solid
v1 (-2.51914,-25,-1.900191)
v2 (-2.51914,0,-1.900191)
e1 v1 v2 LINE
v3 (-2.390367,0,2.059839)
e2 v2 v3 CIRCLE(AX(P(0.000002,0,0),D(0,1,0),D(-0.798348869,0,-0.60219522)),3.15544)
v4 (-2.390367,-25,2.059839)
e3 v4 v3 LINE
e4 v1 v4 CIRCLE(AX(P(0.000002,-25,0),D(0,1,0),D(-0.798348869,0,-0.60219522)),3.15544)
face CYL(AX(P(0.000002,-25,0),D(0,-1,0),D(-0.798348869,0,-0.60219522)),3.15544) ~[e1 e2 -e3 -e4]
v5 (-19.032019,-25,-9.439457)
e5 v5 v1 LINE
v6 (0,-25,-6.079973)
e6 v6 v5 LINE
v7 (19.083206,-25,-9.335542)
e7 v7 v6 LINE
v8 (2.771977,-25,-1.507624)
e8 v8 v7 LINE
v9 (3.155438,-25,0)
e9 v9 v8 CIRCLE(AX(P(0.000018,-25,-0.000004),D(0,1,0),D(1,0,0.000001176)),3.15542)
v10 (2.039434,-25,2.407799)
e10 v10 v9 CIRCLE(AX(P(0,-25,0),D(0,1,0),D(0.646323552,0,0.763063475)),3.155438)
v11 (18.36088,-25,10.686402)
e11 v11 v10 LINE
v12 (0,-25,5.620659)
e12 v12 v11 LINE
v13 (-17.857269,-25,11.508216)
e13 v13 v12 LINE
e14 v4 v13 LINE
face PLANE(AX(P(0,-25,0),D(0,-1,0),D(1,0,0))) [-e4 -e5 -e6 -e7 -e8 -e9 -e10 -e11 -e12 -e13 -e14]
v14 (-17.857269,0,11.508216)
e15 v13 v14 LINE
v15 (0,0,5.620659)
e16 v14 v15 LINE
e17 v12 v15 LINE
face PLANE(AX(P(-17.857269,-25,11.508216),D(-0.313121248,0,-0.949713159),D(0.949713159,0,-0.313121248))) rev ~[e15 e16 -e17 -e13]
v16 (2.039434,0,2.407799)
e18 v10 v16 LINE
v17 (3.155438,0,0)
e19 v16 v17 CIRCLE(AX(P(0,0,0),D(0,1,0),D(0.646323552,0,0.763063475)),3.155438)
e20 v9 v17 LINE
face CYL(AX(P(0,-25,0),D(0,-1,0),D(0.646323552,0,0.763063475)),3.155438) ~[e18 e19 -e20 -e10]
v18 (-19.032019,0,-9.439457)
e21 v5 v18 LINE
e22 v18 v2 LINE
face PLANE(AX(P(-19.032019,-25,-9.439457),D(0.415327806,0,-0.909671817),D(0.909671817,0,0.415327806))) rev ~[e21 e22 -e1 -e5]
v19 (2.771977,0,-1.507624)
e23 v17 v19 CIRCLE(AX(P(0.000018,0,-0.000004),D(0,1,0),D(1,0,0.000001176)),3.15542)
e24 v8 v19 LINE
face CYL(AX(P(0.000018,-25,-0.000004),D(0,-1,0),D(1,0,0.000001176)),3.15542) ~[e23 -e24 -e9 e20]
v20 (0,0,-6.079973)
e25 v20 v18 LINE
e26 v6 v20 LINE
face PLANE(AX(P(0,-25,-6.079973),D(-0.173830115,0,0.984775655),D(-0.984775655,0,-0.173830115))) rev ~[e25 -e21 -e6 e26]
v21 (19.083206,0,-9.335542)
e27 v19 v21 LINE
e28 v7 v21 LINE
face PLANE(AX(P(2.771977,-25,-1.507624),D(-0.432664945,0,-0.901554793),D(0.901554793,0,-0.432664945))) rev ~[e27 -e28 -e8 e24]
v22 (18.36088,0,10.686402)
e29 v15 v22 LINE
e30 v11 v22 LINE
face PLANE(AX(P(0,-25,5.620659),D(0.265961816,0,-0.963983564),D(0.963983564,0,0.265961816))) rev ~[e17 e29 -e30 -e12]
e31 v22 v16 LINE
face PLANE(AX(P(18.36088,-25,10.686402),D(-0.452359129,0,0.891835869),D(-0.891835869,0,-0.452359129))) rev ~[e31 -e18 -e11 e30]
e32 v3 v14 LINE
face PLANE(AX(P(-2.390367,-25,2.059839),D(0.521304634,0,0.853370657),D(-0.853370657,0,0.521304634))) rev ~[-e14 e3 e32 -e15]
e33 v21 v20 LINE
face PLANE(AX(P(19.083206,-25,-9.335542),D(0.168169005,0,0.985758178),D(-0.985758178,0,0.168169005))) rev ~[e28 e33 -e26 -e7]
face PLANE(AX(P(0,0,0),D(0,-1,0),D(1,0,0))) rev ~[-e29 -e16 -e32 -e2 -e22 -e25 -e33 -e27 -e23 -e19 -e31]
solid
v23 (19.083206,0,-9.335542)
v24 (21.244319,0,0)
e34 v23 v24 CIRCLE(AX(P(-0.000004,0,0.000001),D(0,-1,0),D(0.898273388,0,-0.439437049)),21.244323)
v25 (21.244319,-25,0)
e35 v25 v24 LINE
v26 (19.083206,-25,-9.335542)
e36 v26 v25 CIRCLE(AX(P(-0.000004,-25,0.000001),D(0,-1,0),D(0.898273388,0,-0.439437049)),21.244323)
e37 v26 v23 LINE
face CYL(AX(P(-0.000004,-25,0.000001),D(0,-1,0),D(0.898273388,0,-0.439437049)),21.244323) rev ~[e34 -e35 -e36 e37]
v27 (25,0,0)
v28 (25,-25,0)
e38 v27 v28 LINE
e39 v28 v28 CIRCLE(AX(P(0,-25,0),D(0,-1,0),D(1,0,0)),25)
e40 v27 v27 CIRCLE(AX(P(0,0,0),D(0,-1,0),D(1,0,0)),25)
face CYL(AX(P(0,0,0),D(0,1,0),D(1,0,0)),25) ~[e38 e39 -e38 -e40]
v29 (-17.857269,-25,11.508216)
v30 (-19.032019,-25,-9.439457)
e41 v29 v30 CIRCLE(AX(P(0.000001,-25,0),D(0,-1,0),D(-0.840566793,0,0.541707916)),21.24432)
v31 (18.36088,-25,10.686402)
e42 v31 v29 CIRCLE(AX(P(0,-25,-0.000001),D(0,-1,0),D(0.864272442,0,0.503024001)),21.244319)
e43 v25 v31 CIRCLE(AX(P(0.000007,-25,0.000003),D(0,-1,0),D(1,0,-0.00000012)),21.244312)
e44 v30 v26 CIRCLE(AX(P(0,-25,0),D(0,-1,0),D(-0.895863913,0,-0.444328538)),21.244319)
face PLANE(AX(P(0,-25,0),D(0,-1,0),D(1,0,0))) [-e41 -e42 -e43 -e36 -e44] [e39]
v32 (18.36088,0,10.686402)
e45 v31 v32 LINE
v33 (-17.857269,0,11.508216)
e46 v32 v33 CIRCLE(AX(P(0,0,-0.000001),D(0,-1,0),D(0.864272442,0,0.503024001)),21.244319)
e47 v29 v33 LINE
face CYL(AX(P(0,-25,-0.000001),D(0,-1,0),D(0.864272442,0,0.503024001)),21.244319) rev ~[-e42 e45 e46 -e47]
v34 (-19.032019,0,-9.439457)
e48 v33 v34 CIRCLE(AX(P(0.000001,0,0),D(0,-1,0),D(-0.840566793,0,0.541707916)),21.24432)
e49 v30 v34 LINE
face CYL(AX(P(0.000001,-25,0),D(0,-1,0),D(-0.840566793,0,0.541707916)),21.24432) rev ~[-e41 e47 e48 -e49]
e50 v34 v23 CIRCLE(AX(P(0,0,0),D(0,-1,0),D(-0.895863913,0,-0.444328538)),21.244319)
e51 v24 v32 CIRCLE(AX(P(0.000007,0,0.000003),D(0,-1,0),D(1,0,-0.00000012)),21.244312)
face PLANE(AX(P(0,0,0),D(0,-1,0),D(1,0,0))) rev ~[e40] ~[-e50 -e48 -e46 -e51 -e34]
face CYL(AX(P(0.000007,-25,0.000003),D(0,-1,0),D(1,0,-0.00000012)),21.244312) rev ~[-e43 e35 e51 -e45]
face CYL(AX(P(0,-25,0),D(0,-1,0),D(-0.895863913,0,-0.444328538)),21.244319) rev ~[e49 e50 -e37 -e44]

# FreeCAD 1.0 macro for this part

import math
import FreeCAD as App
import Part
import Sketcher

V = App.Vector
Q = App.Units.Quantity

doc = App.newDocument("Part")
params = doc.addObject("Spreadsheet::Sheet", "Params")
for row, (alias, value) in enumerate([
    ("sketch1_diameter", "50 mm"),
    ("pad1_length", "25 mm"),
    ("pocket1_length", "30 mm"),
    ("pocket2_length", "25 mm"),
], start=1):
    params.set(f"A{row}", alias)
    params.set(f"B{row}", "=" + value)
    params.setAlias(f"B{row}", alias)

body = doc.addObject("PartDesign::Body", "Body")
body.AllowCompound = True

# Sketch on XZ plane
sketch1 = body.newObject("Sketcher::SketchObject", "Sketch")
sketch1.AttachmentSupport = (doc.getObject("XZ_Plane"), [""])
sketch1.MapMode = "FlatFace"
sketch1.addGeometry(Part.Circle(V(0, 0, 0), V(0, 0, 1), 25), False)
sketch1.addConstraint([
    Sketcher.Constraint("Coincident", 0, 3, -1, 1),
    Sketcher.Constraint("Diameter", 0, Q("50 mm")),
])
sketch1.setExpression("Constraints[1]", "Params.sketch1_diameter")
pad1 = body.newObject("PartDesign::Pad", "Pad")
pad1.Profile = sketch1
pad1.setExpression("Length", "Params.pad1_length")

# Sketch on XZ plane
sketch2 = body.newObject("Sketcher::SketchObject", "Sketch001")
sketch2.AttachmentSupport = (doc.getObject("XZ_Plane"), [""])
sketch2.MapMode = "FlatFace"
sketch2.AttachmentOffset = App.Placement(V(0, 0, 25), App.Rotation())
sketch2.addGeometry([
    Part.LineSegment(V(0, 6, 0), V(18, 11, 0)),  # 0
    Part.ArcOfCircle(Part.Circle(V(0, 0, 0), V(0, 0, 1), 21), math.radians(30), math.radians(147)),  # 1
    Part.LineSegment(V(-18, 12, 0), V(0, 6, 0)),  # 2
    Part.ArcOfCircle(Part.Circle(V(0, 0, 0), V(0, 0, 1), 21), math.radians(-154), math.radians(-26)),  # 3
    Part.LineSegment(V(19, -9, 0), V(0, -6, 0)),  # 4
    Part.LineSegment(V(0, -6, 0), V(-19, -9, 0)),  # 5
], False)
sketch2.addConstraint([
    Sketcher.Constraint("Coincident", 0, 2, 1, 1),
    Sketcher.Constraint("Coincident", 1, 2, 2, 1),
    Sketcher.Constraint("Coincident", 2, 2, 0, 1),
    Sketcher.Constraint("Coincident", 3, 2, 4, 1),
    Sketcher.Constraint("Coincident", 4, 2, 5, 1),
    Sketcher.Constraint("Coincident", 5, 2, 3, 1),
    Sketcher.Constraint("Coincident", 1, 3, -1, 1),
    Sketcher.Constraint("Coincident", 3, 3, -1, 1),
    Sketcher.Constraint("Equal", 1, 3),
    Sketcher.Constraint("PointOnObject", 2, 2, -2),
    Sketcher.Constraint("PointOnObject", 4, 2, -2),
    Sketcher.Constraint("Radius", 1, Q("21.244319 mm")),
    Sketcher.Constraint("DistanceY", -1, 1, 0, 2, Q("10.686402 mm")),
    Sketcher.Constraint("DistanceY", 3, 2, 2, 2, Q("14.956201 mm")),
    Sketcher.Constraint("Distance", 0, Q("19.046881 mm")),
    Sketcher.Constraint("Distance", 5, Q("19.326248 mm")),
    Sketcher.Constraint("DistanceX", 1, 2, -1, 1, Q("17.857269 mm")),
    Sketcher.Constraint("DistanceX", 5, 2, -1, 1, Q("19.032019 mm")),
])
pocket1 = body.newObject("PartDesign::Pocket", "Pocket")
pocket1.Profile = sketch2
pocket1.setExpression("Length", "Params.pocket1_length")

# Sketch on XZ plane
sketch3 = body.newObject("Sketcher::SketchObject", "Sketch002")
sketch3.AttachmentSupport = (doc.getObject("XZ_Plane"), [""])
sketch3.MapMode = "FlatFace"
sketch3.AttachmentOffset = App.Placement(V(0, 0, 25), App.Rotation())
sketch3.addGeometry([
    Part.LineSegment(V(-2.4, 2.1, 0), V(-17.9, 11.5, 0)),  # 0
    Part.ArcOfCircle(Part.Circle(V(0, 0, 0), V(0, 0, 1), 21.2), math.radians(147), math.radians(206)),  # 1
    Part.LineSegment(V(-19, -9.4, 0), V(-2.5, -1.9, 0)),  # 2
    Part.ArcOfCircle(Part.Circle(V(0, 0, 0), V(0, 0, 1), 3.2), math.radians(139), math.radians(217)),  # 3
    Part.ArcOfCircle(Part.Circle(V(0, 0, 0), V(0, 0, 1), 21.2), math.radians(-26), math.radians(0)),  # 4
    Part.ArcOfCircle(Part.Circle(V(0, 0, 0), V(0, 0, 1), 21.2), math.radians(0), math.radians(30)),  # 5
    Part.LineSegment(V(18.4, 10.7, 0), V(2, 2.4, 0)),  # 6
    Part.ArcOfCircle(Part.Circle(V(0, 0, 0), V(0, 0, 1), 3.2), math.radians(0), math.radians(50)),  # 7
    Part.ArcOfCircle(Part.Circle(V(0, 0, 0), V(0, 0, 1), 3.2), math.radians(-29), math.radians(0)),  # 8
    Part.LineSegment(V(2.8, -1.5, 0), V(19.1, -9.3, 0)),  # 9
], False)
sketch3.addConstraint([
    Sketcher.Constraint("Coincident", 0, 2, 1, 1),
    Sketcher.Constraint("Coincident", 1, 2, 2, 1),
    Sketcher.Constraint("Coincident", 2, 2, 3, 2),
    Sketcher.Constraint("Coincident", 3, 1, 0, 1),
    Sketcher.Constraint("Tangent", 4, 2, 5, 1),
    Sketcher.Constraint("Coincident", 5, 2, 6, 1),
    Sketcher.Constraint("Coincident", 6, 2, 7, 2),
    Sketcher.Constraint("Tangent", 7, 1, 8, 2),
    Sketcher.Constraint("Coincident", 8, 1, 9, 1),
    Sketcher.Constraint("Coincident", 9, 2, 4, 1),
    Sketcher.Constraint("Coincident", 1, 3, -1, 1),
    Sketcher.Constraint("Coincident", 3, 3, -1, 1),
    Sketcher.Constraint("Coincident", 4, 3, -1, 1),
    Sketcher.Constraint("Coincident", 7, 3, -1, 1),
    Sketcher.Constraint("PointOnObject", 4, 2, -1),
    Sketcher.Constraint("PointOnObject", 7, 1, -1),
    Sketcher.Constraint("Radius", 1, Q("21.24432 mm")),
    Sketcher.Constraint("Radius", 3, Q("3.15544 mm")),
    Sketcher.Constraint("Radius", 5, Q("21.244312 mm")),
    Sketcher.Constraint("Radius", 8, Q("3.15542 mm")),
    Sketcher.Constraint("Radius", 4, Q("21.244323 mm")),
    Sketcher.Constraint("Radius", 7, Q("3.155438 mm")),
    Sketcher.Constraint("DistanceY", -1, 1, 5, 2, Q("10.686402 mm")),
    Sketcher.Constraint("DistanceY", -1, 1, 6, 2, Q("2.407799 mm")),
    Sketcher.Constraint("DistanceX", 0, 2, -1, 1, Q("17.857269 mm")),
    Sketcher.Constraint("DistanceX", 1, 2, -1, 1, Q("19.032019 mm")),
    Sketcher.Constraint("DistanceX", 2, 2, -1, 1, Q("2.51914 mm")),
    Sketcher.Constraint("DistanceY", -1, 1, 3, 1, Q("2.059839 mm")),
    Sketcher.Constraint("DistanceX", 8, 1, 7, 1, Q("0.383461 mm")),
    Sketcher.Constraint("DistanceX", 8, 1, 9, 2, Q("16.311229 mm")),
])
pocket2 = body.newObject("PartDesign::Pocket", "Pocket001")
pocket2.Profile = sketch3
pocket2.setExpression("Length", "Params.pocket2_length")

doc.recompute()
